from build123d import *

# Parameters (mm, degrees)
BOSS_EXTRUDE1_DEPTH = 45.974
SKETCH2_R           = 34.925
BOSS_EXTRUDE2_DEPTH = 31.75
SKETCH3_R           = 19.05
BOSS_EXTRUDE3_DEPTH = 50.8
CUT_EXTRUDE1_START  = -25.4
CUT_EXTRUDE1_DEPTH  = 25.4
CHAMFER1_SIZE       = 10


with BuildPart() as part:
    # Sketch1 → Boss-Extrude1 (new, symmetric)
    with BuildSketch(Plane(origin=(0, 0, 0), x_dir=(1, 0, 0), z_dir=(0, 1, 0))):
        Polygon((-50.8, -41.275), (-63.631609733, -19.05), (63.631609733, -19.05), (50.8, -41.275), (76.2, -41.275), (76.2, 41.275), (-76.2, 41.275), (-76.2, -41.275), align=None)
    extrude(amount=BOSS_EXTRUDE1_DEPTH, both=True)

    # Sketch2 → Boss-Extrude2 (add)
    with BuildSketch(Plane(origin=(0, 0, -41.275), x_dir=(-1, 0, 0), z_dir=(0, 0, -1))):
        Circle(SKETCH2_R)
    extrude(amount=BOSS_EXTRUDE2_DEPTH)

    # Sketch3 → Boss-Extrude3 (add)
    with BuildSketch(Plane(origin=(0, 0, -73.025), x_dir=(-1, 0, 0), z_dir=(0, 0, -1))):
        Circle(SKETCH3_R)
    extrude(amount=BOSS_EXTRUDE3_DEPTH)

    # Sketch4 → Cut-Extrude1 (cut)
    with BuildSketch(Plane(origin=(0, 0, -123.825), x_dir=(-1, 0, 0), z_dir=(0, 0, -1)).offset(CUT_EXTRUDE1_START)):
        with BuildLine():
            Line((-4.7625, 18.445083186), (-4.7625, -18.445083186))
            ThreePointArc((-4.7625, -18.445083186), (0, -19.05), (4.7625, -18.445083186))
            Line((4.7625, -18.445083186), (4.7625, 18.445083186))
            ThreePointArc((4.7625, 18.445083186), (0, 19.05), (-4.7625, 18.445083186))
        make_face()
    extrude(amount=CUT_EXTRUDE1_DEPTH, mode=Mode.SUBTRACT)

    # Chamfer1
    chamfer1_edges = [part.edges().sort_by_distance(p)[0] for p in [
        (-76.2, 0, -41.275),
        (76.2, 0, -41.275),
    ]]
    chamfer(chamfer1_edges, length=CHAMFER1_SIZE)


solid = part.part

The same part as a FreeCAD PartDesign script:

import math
import FreeCAD as App
import Part
import Sketcher
Q = App.Units.Quantity


def edges_at(feature, points):
    """Names of the edges that pass closest to the given points."""
    edges = feature.Shape.Edges
    near = lambda p: min(range(len(edges)), key=lambda i: edges[i].distToShape(Part.Vertex(*p))[0])
    return sorted({f"Edge{near(p) + 1}" for p in points})

doc = App.newDocument("Part")
params = doc.addObject("Spreadsheet::Sheet", "Params")
for row, (alias, value) in enumerate([
    ("sketch1_width", "1 in"),
    ("sketch1_width2", "6 in"),
    ("sketch1_height", "3.25 in"),
    ("pad1_length", "3.62 in"),
    ("sketch2_diameter", "2.75 in"),
    ("pad2_length", "1.25 in"),
    ("sketch3_diameter", "1.5 in"),
    ("pad3_length", "2 in"),
    ("sketch4_radius", "0.75 in"),
    ("pocket1_length", "1 in"),
    ("chamfer_size", "10 mm"),
], start=1):
    params.set(f"A{row}", alias)
    params.set(f"B{row}", "=" + value)
    params.setAlias(f"B{row}", alias)

body = doc.addObject("PartDesign::Body", "Body")

# Sketch on XZ plane
sketch1 = doc.addObject("Sketcher::SketchObject", "Sketch")
body.addObject(sketch1)
sketch1.AttachmentSupport = (doc.XZ_Plane, [""])
sketch1.MapMode = "FlatFace"
sketch1.addGeometry([
    Part.LineSegment(App.Vector(-50.8, 41.275, 0), App.Vector(-63.63161, 19.05, 0)),  # 0
    Part.LineSegment(App.Vector(-63.63161, 19.05, 0), App.Vector(63.63161, 19.05, 0)),  # 1
    Part.LineSegment(App.Vector(63.63161, 19.05, 0), App.Vector(50.8, 41.275, 0)),  # 2
    Part.LineSegment(App.Vector(50.8, 41.275, 0), App.Vector(76.2, 41.275, 0)),  # 3
    Part.LineSegment(App.Vector(76.2, 41.275, 0), App.Vector(76.2, -41.275, 0)),  # 4
    Part.LineSegment(App.Vector(76.2, -41.275, 0), App.Vector(-76.2, -41.275, 0)),  # 5
    Part.LineSegment(App.Vector(-76.2, -41.275, 0), App.Vector(-76.2, 41.275, 0)),  # 6
    Part.LineSegment(App.Vector(-76.2, 41.275, 0), App.Vector(-50.8, 41.275, 0)),  # 7
], False)
sketch1.addConstraint([
    Sketcher.Constraint("Coincident", 0, 2, 1, 1),
    Sketcher.Constraint("Coincident", 1, 2, 2, 1),
    Sketcher.Constraint("Coincident", 2, 2, 3, 1),
    Sketcher.Constraint("Coincident", 3, 2, 4, 1),
    Sketcher.Constraint("Coincident", 4, 2, 5, 1),
    Sketcher.Constraint("Coincident", 5, 2, 6, 1),
    Sketcher.Constraint("Coincident", 6, 2, 7, 1),
    Sketcher.Constraint("Coincident", 7, 2, 0, 1),
    Sketcher.Constraint("Horizontal", 1),
    Sketcher.Constraint("Horizontal", 3),
    Sketcher.Constraint("Vertical", 4),
    Sketcher.Constraint("Horizontal", 5),
    Sketcher.Constraint("Vertical", 6),
    Sketcher.Constraint("Horizontal", 7),
    Sketcher.Constraint("Symmetric", 3, 2, 5, 2, -1, 1),
    Sketcher.Constraint("Symmetric", 2, 2, 7, 2, -2),
    Sketcher.Constraint("Equal", 0, 2),
    Sketcher.Constraint("DistanceX", 3, 1, 3, 2, Q("1 in")),
    Sketcher.Constraint("DistanceX", 5, 2, 5, 1, Q("6 in")),
    Sketcher.Constraint("Angle", 0, Q("-120 deg")),
    Sketcher.Constraint("DistanceY", 4, 2, 4, 1, Q("3.25 in")),
    Sketcher.Constraint("DistanceY", -1, 1, 0, 2, Q("0.75 in")),
])
sketch1.setExpression("Constraints[17]", "Params.sketch1_width")
sketch1.setExpression("Constraints[18]", "Params.sketch1_width2")
sketch1.setExpression("Constraints[20]", "Params.sketch1_height")
pad1 = doc.addObject("PartDesign::Pad", "Pad")
body.addObject(pad1)
pad1.Profile = sketch1
pad1.setExpression("Length", "Params.pad1_length")
pad1.Midplane = True

# Sketch on XY plane
sketch2 = doc.addObject("Sketcher::SketchObject", "Sketch001")
body.addObject(sketch2)
sketch2.AttachmentSupport = (doc.XY_Plane, [""])
sketch2.MapMode = "FlatFace"
sketch2.AttachmentOffset = App.Placement(App.Vector(0, 0, -1.625 * 25.4), App.Rotation())
sketch2.addGeometry(Part.Circle(App.Vector(0, 0, 0), App.Vector(0, 0, 1), 34.925), False)
sketch2.addConstraint([
    Sketcher.Constraint("Coincident", 0, 3, -1, 1),
    Sketcher.Constraint("Diameter", 0, Q("2.75 in")),
])
sketch2.setExpression("Constraints[1]", "Params.sketch2_diameter")
pad2 = doc.addObject("PartDesign::Pad", "Pad001")
body.addObject(pad2)
pad2.Profile = sketch2
pad2.setExpression("Length", "Params.pad2_length")
pad2.Reversed = True

# Sketch on XY plane
sketch3 = doc.addObject("Sketcher::SketchObject", "Sketch002")
body.addObject(sketch3)
sketch3.AttachmentSupport = (doc.XY_Plane, [""])
sketch3.MapMode = "FlatFace"
sketch3.AttachmentOffset = App.Placement(App.Vector(0, 0, -2.875 * 25.4), App.Rotation())
sketch3.addGeometry(Part.Circle(App.Vector(0, 0, 0), App.Vector(0, 0, 1), 19.05), False)
sketch3.addConstraint([
    Sketcher.Constraint("Coincident", 0, 3, -1, 1),
    Sketcher.Constraint("Diameter", 0, Q("1.5 in")),
])
sketch3.setExpression("Constraints[1]", "Params.sketch3_diameter")
pad3 = doc.addObject("PartDesign::Pad", "Pad002")
body.addObject(pad3)
pad3.Profile = sketch3
pad3.setExpression("Length", "Params.pad3_length")
pad3.Reversed = True

# Sketch on XY plane
sketch4 = doc.addObject("Sketcher::SketchObject", "Sketch003")
body.addObject(sketch4)
sketch4.AttachmentSupport = (doc.XY_Plane, [""])
sketch4.MapMode = "FlatFace"
sketch4.AttachmentOffset = App.Placement(App.Vector(0, 0, -3.875 * 25.4), App.Rotation())
sketch4.addGeometry([
    Part.LineSegment(App.Vector(4.7625, 18.445083, 0), App.Vector(4.7625, -18.445083, 0)),
    Part.ArcOfCircle(Part.Circle(App.Vector(0, 0, 0), App.Vector(0, 0, 1), 19.05), math.radians(-104.477512), math.radians(-75.522488)),
    Part.LineSegment(App.Vector(-4.7625, -18.445083, 0), App.Vector(-4.7625, 18.445083, 0)),
    Part.ArcOfCircle(Part.Circle(App.Vector(0, 0, 0), App.Vector(0, 0, 1), 19.05), math.radians(75.522488), math.radians(104.477512)),
], False)
sketch4.addConstraint([
    Sketcher.Constraint("Coincident", 0, 2, 1, 2),
    Sketcher.Constraint("Coincident", 1, 1, 2, 1),
    Sketcher.Constraint("Coincident", 2, 2, 3, 2),
    Sketcher.Constraint("Coincident", 3, 1, 0, 1),
    Sketcher.Constraint("Vertical", 0),
    Sketcher.Constraint("Vertical", 2),
    Sketcher.Constraint("Coincident", 1, 3, -1, 1),
    Sketcher.Constraint("Coincident", 3, 3, -1, 1),
    Sketcher.Constraint("Equal", 1, 3),
    Sketcher.Constraint("Horizontal", 0, 2, 1, 1),
    Sketcher.Constraint("Radius", 1, Q("0.75 in")),
    Sketcher.Constraint("DistanceX", -1, 1, 0, 2, Q("0.1875 in")),
])
sketch4.setExpression("Constraints[10]", "Params.sketch4_radius")
pocket1 = doc.addObject("PartDesign::Pocket", "Pocket")
body.addObject(pocket1)
pocket1.Profile = sketch4
pocket1.setExpression("Length", "Params.pocket1_length")
doc.recompute()

chamfer = doc.addObject("PartDesign::Chamfer", "Chamfer")
body.addObject(chamfer)
chamfer.Base = (pocket1, edges_at(pocket1, [(-76.2, 0, -41.275), (76.2, 0, -41.275)]))
chamfer.setExpression("Size", "Params.chamfer_size")

doc.recompute()
